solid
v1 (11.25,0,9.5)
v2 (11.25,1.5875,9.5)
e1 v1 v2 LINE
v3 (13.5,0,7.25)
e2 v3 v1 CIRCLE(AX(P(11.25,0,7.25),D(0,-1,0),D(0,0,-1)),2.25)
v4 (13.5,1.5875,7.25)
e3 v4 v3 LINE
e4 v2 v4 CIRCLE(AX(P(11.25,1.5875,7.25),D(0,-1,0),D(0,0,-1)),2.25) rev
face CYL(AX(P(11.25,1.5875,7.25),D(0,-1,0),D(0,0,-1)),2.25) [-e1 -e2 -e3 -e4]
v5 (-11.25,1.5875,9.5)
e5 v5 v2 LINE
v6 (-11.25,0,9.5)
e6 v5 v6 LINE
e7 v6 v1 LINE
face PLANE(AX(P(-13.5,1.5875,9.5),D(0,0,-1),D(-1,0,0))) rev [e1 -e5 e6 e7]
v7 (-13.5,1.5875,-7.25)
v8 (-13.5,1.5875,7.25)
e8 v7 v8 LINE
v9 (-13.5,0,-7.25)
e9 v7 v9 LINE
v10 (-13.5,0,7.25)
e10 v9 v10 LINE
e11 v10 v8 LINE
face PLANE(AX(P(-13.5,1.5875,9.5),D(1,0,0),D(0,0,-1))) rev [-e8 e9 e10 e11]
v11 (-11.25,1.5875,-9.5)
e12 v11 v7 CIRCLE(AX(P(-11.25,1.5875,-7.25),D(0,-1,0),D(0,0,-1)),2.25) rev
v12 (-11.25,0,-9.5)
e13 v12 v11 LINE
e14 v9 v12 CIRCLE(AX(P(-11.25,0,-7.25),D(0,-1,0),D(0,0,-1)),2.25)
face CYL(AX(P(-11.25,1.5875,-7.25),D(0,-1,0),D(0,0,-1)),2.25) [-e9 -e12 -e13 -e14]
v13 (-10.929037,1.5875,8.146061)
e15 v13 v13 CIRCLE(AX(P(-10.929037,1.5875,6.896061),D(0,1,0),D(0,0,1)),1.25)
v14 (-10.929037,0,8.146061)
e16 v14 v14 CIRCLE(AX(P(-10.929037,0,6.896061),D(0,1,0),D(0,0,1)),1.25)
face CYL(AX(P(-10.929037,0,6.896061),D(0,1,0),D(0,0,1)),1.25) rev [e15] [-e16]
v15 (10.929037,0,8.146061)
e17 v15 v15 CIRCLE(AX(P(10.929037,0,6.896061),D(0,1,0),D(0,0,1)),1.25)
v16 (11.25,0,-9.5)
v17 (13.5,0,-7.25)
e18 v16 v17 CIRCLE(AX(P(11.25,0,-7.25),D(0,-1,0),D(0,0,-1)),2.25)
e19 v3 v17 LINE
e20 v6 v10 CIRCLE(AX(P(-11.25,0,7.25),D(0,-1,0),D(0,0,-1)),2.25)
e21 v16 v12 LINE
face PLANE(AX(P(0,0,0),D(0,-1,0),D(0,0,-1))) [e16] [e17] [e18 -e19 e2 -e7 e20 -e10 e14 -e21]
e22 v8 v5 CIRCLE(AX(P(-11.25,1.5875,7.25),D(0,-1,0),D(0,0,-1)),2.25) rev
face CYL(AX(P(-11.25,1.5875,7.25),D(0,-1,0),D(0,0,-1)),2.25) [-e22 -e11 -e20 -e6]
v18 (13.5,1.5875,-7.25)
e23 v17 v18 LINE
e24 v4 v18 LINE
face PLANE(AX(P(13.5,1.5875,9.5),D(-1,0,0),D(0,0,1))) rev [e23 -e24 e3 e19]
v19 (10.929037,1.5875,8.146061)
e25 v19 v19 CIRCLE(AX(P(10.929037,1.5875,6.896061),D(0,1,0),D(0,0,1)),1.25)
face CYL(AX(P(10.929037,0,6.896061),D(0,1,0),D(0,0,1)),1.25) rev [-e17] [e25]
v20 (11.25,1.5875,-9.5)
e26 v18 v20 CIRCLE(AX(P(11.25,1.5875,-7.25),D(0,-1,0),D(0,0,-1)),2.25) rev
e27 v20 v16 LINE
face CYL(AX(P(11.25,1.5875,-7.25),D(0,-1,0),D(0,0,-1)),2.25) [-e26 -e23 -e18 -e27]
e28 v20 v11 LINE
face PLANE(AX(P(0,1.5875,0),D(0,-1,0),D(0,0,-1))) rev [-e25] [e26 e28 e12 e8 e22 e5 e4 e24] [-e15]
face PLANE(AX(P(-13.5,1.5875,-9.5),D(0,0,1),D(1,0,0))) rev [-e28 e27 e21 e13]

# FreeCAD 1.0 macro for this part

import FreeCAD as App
import Part
import Sketcher
from FreeCAD import Vector
Q = App.Units.Quantity


def edges_at(feature, points):
    """Names of the edges that pass closest to the given points."""
    edges = feature.Shape.Edges
    near = lambda p: min(range(len(edges)), key=lambda i: edges[i].distToShape(Part.Vertex(*p))[0])
    return sorted({f"Edge{near(p) + 1}" for p in points})

doc = App.newDocument("Part")
params = doc.addObject("Spreadsheet::Sheet", "Params")
for row, (alias, value) in enumerate([
    ("sketch1_width", "27 mm"),
    ("sketch1_height", "19 mm"),
    ("pad1_length", "1.5875 mm"),
    ("fillet_radius", "2.25 mm"),
    ("sketch2_diameter", "2.5 mm"),
], start=1):
    params.set(f"A{row}", alias)
    params.set(f"B{row}", "=" + value)
    params.setAlias(f"B{row}", alias)

body = doc.addObject("PartDesign::Body", "Body")

sketch1 = body.newObject("Sketcher::SketchObject", "Sketch")
sketch1.AttachmentSupport = (doc.getObject("XZ_Plane"), [""])
sketch1.MapMode = "FlatFace"
sketch1.addGeometry(Part.LineSegment(Vector(-14, -10, 0), Vector(-14, 10, 0)), False)
sketch1.addGeometry(Part.LineSegment(Vector(-14, 10, 0), Vector(14, 10, 0)), False)
sketch1.addGeometry(Part.LineSegment(Vector(14, 10, 0), Vector(14, -10, 0)), False)
sketch1.addGeometry(Part.LineSegment(Vector(14, -10, 0), Vector(-14, -10, 0)), False)
sketch1.addConstraint(Sketcher.Constraint("Coincident", 0, 2, 1, 1))
sketch1.addConstraint(Sketcher.Constraint("Coincident", 1, 2, 2, 1))
sketch1.addConstraint(Sketcher.Constraint("Coincident", 2, 2, 3, 1))
sketch1.addConstraint(Sketcher.Constraint("Coincident", 3, 2, 0, 1))
sketch1.addConstraint(Sketcher.Constraint("Vertical", 0))
sketch1.addConstraint(Sketcher.Constraint("Horizontal", 1))
sketch1.addConstraint(Sketcher.Constraint("Vertical", 2))
sketch1.addConstraint(Sketcher.Constraint("Horizontal", 3))
sketch1.addConstraint(Sketcher.Constraint("Symmetric", 0, 2, 2, 2, -1, 1))
sketch1.addConstraint(Sketcher.Constraint("DistanceX", 1, 1, 1, 2, Q("27 mm")))
sketch1.addConstraint(Sketcher.Constraint("DistanceY", 0, 1, 0, 2, Q("19 mm")))
sketch1.setExpression("Constraints[9]", "Params.sketch1_width")
sketch1.setExpression("Constraints[10]", "Params.sketch1_height")
pad1 = body.newObject("PartDesign::Pad", "Pad")
pad1.Profile = sketch1
pad1.setExpression("Length", "Params.pad1_length")
pad1.Reversed = True
doc.recompute()

fillet = body.newObject("PartDesign::Fillet", "Fillet")
fillet.Base = (pad1, edges_at(pad1, [
    (13.5, 0.794, 9.5),
    (-13.5, 0.794, 9.5),
    (-13.5, 0.794, -9.5),
    (13.5, 0.794, -9.5),
]))
fillet.setExpression("Radius", "Params.fillet_radius")

sketch2 = body.newObject("Sketcher::SketchObject", "Sketch001")
sketch2.AttachmentSupport = (doc.getObject("XZ_Plane"), [""])
sketch2.MapMode = "FlatFace"
sketch2.AttachmentOffset = App.Placement(Vector(0, 0, -1.5875), App.Rotation())
sketch2.addGeometry(Part.Circle(Vector(-10.9, 6.9, 0), Vector(0, 0, 1), 1.2), False)
sketch2.addGeometry(Part.Circle(Vector(10.9, 6.9, 0), Vector(0, 0, 1), 1.2), False)
sketch2.addConstraint(Sketcher.Constraint("Equal", 0, 1))
sketch2.addConstraint(Sketcher.Constraint("Symmetric", 0, 3, 1, 3, -2))
sketch2.addConstraint(Sketcher.Constraint("Diameter", 0, Q("2.5 mm")))
sketch2.addConstraint(Sketcher.Constraint("DistanceY", -1, 1, 0, 3, Q("6.896061 mm")))
sketch2.addConstraint(Sketcher.Constraint("DistanceX", 0, 3, -1, 1, Q("10.929037 mm")))
sketch2.setExpression("Constraints[2]", "Params.sketch2_diameter")
pocket1 = body.newObject("PartDesign::Pocket", "Pocket")
pocket1.Profile = sketch2
pocket1.Type = "ThroughAll"
pocket1.Reversed = True

doc.recompute()
